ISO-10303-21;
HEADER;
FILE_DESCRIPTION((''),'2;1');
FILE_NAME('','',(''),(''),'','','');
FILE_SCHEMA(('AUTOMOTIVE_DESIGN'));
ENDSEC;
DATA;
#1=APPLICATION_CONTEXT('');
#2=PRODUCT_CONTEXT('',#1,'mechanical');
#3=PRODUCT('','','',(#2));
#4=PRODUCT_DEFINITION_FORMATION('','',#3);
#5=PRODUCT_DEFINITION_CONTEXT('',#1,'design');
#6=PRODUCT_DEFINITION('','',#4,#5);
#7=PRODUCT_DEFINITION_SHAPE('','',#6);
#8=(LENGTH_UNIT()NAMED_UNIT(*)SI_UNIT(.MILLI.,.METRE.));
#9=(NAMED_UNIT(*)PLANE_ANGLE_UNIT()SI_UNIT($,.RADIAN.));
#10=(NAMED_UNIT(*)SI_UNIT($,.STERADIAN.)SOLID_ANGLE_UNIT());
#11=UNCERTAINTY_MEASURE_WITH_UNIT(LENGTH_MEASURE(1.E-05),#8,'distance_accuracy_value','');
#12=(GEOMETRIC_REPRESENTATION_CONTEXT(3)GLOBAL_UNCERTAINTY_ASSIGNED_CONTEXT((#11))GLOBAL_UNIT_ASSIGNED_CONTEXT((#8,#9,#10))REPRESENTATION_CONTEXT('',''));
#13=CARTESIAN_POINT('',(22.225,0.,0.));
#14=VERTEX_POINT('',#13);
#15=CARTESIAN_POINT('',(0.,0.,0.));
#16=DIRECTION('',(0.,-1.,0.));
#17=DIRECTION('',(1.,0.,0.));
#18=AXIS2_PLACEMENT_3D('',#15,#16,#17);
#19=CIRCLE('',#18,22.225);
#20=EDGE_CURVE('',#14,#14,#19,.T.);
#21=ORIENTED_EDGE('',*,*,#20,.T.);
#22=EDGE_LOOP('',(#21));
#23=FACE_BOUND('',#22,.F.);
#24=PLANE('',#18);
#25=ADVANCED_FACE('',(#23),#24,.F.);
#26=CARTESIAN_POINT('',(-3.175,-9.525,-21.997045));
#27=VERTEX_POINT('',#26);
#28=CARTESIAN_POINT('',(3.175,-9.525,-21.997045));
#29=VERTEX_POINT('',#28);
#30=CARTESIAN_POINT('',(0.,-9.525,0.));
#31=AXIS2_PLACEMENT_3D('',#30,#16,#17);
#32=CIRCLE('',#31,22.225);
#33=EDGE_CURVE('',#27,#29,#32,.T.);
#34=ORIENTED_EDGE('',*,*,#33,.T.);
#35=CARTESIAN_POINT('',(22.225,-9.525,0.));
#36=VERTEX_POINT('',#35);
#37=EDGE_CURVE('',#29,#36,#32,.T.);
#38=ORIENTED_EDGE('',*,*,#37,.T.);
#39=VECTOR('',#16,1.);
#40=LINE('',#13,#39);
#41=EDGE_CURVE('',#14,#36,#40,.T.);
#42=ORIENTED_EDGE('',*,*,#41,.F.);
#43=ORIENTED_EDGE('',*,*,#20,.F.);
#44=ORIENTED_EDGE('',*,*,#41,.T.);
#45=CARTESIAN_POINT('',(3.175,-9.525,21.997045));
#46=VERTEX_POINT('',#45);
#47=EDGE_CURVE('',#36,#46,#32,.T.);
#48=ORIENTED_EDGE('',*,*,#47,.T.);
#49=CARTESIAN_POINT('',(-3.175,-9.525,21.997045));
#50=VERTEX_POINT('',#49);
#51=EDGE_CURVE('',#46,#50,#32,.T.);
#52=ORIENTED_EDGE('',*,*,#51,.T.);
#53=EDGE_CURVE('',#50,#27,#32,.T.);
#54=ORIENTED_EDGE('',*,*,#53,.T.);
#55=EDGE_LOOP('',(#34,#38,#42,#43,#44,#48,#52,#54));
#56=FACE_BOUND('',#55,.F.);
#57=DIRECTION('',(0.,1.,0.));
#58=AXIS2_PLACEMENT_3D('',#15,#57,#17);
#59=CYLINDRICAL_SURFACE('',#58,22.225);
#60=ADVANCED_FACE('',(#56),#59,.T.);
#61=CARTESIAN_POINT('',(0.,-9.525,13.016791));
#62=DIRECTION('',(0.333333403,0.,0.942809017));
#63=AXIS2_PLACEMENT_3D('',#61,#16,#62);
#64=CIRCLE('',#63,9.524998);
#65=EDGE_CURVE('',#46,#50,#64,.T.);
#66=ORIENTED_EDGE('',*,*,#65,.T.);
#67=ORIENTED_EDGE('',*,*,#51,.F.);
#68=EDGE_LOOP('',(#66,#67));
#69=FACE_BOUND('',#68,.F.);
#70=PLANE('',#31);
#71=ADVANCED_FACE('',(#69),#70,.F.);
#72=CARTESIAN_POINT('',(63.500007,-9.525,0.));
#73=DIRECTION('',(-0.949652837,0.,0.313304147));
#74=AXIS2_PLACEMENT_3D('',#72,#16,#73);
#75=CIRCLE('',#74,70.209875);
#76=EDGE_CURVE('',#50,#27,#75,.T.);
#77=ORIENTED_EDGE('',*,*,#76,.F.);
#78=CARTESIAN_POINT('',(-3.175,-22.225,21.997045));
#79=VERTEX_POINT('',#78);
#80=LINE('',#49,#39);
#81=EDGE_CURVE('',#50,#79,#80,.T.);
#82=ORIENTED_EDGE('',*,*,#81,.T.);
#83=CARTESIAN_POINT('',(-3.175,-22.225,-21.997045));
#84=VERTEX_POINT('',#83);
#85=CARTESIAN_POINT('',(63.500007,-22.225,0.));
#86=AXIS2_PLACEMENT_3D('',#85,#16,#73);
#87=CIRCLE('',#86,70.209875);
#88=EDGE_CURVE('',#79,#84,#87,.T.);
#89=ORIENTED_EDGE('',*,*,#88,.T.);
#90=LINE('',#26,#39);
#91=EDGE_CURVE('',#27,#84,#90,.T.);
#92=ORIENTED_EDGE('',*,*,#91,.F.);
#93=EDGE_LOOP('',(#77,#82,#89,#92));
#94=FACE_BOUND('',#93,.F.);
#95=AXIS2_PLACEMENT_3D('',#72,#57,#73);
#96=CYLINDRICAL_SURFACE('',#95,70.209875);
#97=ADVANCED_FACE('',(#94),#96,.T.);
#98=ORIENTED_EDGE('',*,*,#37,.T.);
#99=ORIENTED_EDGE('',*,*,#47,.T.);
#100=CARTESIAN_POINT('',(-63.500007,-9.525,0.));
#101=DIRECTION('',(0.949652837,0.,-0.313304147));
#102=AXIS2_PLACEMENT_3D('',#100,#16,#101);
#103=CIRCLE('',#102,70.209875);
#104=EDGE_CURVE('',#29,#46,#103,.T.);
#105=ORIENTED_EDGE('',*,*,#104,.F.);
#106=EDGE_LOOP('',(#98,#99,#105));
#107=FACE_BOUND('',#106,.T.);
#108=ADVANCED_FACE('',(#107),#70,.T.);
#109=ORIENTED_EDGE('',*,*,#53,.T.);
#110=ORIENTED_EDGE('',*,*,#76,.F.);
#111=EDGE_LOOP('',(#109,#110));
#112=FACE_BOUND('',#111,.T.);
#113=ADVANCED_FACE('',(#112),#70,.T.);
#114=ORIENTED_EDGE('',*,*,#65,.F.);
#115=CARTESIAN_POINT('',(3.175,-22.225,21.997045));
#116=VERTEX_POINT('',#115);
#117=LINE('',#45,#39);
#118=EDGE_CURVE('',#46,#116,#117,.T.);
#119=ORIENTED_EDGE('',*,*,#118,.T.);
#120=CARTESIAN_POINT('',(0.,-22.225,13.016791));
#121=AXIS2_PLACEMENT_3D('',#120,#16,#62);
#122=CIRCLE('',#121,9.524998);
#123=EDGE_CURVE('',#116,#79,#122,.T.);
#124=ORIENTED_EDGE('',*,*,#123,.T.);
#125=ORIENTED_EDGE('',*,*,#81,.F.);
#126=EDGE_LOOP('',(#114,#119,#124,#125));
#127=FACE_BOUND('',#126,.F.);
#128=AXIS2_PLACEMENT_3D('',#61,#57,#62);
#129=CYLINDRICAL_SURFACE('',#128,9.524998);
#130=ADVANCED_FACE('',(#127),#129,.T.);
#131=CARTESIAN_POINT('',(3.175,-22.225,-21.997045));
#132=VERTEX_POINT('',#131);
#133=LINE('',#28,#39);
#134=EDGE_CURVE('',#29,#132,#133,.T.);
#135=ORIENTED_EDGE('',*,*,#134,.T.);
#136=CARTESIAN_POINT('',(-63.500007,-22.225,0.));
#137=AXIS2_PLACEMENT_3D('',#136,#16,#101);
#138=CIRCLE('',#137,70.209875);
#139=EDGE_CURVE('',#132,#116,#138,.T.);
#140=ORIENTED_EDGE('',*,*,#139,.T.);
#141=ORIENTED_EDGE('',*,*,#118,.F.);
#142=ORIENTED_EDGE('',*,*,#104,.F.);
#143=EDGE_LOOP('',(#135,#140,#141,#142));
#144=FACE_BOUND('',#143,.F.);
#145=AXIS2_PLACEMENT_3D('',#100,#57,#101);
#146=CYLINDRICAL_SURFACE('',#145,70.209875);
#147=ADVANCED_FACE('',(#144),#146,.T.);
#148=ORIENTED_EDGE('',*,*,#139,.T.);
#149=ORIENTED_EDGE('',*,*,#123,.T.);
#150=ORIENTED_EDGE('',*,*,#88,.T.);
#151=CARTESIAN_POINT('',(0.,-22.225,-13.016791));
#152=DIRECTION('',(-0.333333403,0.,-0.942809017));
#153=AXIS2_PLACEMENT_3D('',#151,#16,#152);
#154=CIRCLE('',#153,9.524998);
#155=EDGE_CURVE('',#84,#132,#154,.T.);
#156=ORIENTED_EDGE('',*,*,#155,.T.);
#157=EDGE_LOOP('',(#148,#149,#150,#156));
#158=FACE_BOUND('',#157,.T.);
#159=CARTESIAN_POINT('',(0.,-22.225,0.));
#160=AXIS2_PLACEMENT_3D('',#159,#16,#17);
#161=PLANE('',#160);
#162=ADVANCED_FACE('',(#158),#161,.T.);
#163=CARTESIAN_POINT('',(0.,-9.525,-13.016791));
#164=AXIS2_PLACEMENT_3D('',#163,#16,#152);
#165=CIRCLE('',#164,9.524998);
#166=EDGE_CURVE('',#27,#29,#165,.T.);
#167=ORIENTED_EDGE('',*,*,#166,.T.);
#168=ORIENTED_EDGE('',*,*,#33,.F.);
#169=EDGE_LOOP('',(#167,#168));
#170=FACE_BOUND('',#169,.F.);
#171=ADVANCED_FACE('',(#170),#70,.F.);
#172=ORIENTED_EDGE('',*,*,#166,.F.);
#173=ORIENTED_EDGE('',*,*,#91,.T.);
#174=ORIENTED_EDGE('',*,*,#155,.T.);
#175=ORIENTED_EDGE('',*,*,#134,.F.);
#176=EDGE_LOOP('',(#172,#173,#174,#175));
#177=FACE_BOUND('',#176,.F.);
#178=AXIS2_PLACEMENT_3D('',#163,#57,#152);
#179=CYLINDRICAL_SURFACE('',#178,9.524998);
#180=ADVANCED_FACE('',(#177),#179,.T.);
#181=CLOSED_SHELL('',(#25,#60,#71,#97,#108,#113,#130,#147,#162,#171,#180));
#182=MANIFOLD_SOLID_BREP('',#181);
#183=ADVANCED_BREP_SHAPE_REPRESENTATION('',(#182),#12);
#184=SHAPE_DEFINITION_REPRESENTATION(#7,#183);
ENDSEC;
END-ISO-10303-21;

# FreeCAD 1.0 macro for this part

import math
import FreeCAD as App
import Part
import Sketcher
Q = App.Units.Quantity

doc = App.newDocument("Part")
body = doc.addObject("PartDesign::Body", "Body")

sketch1 = body.newObject("Sketcher::SketchObject", "Sketch")
sketch1.AttachmentSupport = (doc.getObject("XZ_Plane"), [""])
sketch1.MapMode = "FlatFace"
sketch1.addGeometry(Part.Circle(App.Vector(0, 0, 0), App.Vector(0, 0, 1), 22), False)
sketch1.addConstraint([
    Sketcher.Constraint("Coincident", 0, 3, -1, 1),
    Sketcher.Constraint("Diameter", 0, Q("1.75 in")),
])
pad1 = body.newObject("PartDesign::Pad", "Pad")
pad1.Profile = sketch1
pad1.Length = Q("0.375 in")

sketch2 = body.newObject("Sketcher::SketchObject", "Sketch001")
sketch2.AttachmentSupport = (doc.getObject("XZ_Plane"), [""])
sketch2.MapMode = "FlatFace"
sketch2.AttachmentOffset = App.Placement(App.Vector(0, 0, 0.375 * 25.4), App.Rotation())
sketch2.addGeometry([
    Part.ArcOfCircle(Part.Circle(App.Vector(0, 13, 0), App.Vector(0, 0, 1), 10), math.radians(71), math.radians(109)),
    Part.ArcOfCircle(Part.Circle(App.Vector(64, 0, 0), App.Vector(0, 0, 1), 70), math.radians(162), math.radians(198)),
    Part.ArcOfCircle(Part.Circle(App.Vector(0, -13, 0), App.Vector(0, 0, 1), 10), math.radians(-109), math.radians(-71)),
    Part.ArcOfCircle(Part.Circle(App.Vector(-64, 0, 0), App.Vector(0, 0, 1), 70), math.radians(-18), math.radians(18)),
], False)
sketch2.addConstraint([
    Sketcher.Constraint("Coincident", 0, 2, 1, 1),
    Sketcher.Constraint("Coincident", 1, 2, 2, 1),
    Sketcher.Constraint("Coincident", 2, 2, 3, 1),
    Sketcher.Constraint("Coincident", 3, 2, 0, 1),
    Sketcher.Constraint("Equal", 0, 2),
    Sketcher.Constraint("Equal", 1, 3),
    Sketcher.Constraint("Symmetric", 0, 3, 2, 3, -1, 1),
    Sketcher.Constraint("Symmetric", 1, 3, 3, 3, -1, 1),
    Sketcher.Constraint("Symmetric", 1, 2, 2, 2, -2),
    Sketcher.Constraint("Radius", 0, Q("0.3749999 in")),
    Sketcher.Constraint("DistanceX", 1, 2, 2, 2, Q("0.25 in")),
    Sketcher.Constraint("Radius", 1, 70.209875),
    Sketcher.Constraint("DistanceY", -1, 1, 0, 3, 13.016791),
])
pad2 = body.newObject("PartDesign::Pad", "Pad001")
pad2.Profile = sketch2
pad2.Length = Q("0.5 in")

doc.recompute()
